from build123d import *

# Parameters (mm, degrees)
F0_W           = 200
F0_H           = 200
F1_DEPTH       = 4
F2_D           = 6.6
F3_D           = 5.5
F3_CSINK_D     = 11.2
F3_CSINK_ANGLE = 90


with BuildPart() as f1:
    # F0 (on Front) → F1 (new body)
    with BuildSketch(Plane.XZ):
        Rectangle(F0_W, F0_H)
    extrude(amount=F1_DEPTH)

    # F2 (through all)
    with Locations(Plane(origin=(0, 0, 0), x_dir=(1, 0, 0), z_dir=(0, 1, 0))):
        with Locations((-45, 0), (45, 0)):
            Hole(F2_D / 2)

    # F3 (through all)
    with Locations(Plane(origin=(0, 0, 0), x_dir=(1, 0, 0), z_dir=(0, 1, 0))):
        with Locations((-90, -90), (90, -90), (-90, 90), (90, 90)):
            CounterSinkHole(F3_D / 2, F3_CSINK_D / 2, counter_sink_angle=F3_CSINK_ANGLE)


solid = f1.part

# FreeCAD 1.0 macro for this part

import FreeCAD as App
import Part
import Sketcher

V = App.Vector
Q = App.Units.Quantity


def add_polygon(sketch, points):
    """Adds a closed chain of lines whose ends are joined by coincident constraints."""
    first, n = sketch.GeometryCount, len(points)
    for a, b in zip(points, points[1:] + points[:1]):
        sketch.addGeometry(Part.LineSegment(App.Vector(*a, 0), App.Vector(*b, 0)), False)
    for i in range(n):
        sketch.addConstraint(Sketcher.Constraint("Coincident", first + i, 2, first + (i + 1) % n, 1))

doc = App.newDocument("Part")
body = doc.addObject("PartDesign::Body", "Body")

sketch1 = body.newObject("Sketcher::SketchObject", "Sketch")
sketch1.AttachmentSupport = (doc.getObject("XZ_Plane"), [""])
sketch1.MapMode = "FlatFace"
add_polygon(sketch1, [(-100, 100), (-100, -100), (100, -100), (100, 100)])
sketch1.addConstraint([
    Sketcher.Constraint("Vertical", 0),
    Sketcher.Constraint("Horizontal", 1),
    Sketcher.Constraint("Vertical", 2),
    Sketcher.Constraint("Horizontal", 3),
    Sketcher.Constraint("Symmetric", 0, 2, 2, 2, -1, 1),
    Sketcher.Constraint("Equal", 3, 0),
    Sketcher.Constraint("DistanceX", 1, 1, 1, 2, Q("200 mm")),
])
pad1 = body.newObject("PartDesign::Pad", "Pad")
pad1.Profile = sketch1
pad1.Length = 4

sketch2 = body.newObject("Sketcher::SketchObject", "Sketch001")
sketch2.AttachmentSupport = (doc.getObject("XZ_Plane"), [""])
sketch2.MapMode = "FlatFace"
sketch2.addGeometry([
    Part.Circle(V(-45, 0, 0), V(0, 0, 1), 3.3),
    Part.Circle(V(45, 0, 0), V(0, 0, 1), 3.3),
], False)
sketch2.addConstraint([
    Sketcher.Constraint("Equal", 0, 1),
    Sketcher.Constraint("Symmetric", 0, 3, 1, 3, -1, 1),
    Sketcher.Constraint("PointOnObject", 0, 3, -1),
    Sketcher.Constraint("Diameter", 0, Q("6.6 mm")),
    Sketcher.Constraint("DistanceX", 0, 3, -1, 1, Q("45 mm")),
])
doc.recompute()
hole = body.newObject("PartDesign::Hole", "Hole")
hole.Profile = sketch2
hole.ThreadType = "None"
hole.Diameter = 6.6
hole.DepthType = "ThroughAll"
hole.Reversed = True

sketch3 = body.newObject("Sketcher::SketchObject", "Sketch002")
sketch3.AttachmentSupport = (doc.getObject("XZ_Plane"), [""])
sketch3.MapMode = "FlatFace"
sketch3.addGeometry([
    Part.Circle(V(-90, 90, 0), V(0, 0, 1), 2.75),
    Part.Circle(V(90, 90, 0), V(0, 0, 1), 2.75),
    Part.Circle(V(-90, -90, 0), V(0, 0, 1), 2.75),
    Part.Circle(V(90, -90, 0), V(0, 0, 1), 2.75),
], False)
sketch3.addConstraint([
    Sketcher.Constraint("Equal", 0, 1),
    Sketcher.Constraint("Equal", 1, 2),
    Sketcher.Constraint("Equal", 2, 3),
    Sketcher.Constraint("Symmetric", 1, 3, 2, 3, -1, 1),
    Sketcher.Constraint("Symmetric", 0, 3, 3, 3, -1, 1),
    Sketcher.Constraint("Symmetric", 0, 3, 1, 3, -2),
    Sketcher.Constraint("Diameter", 0, Q("5.5 mm")),
    Sketcher.Constraint("DistanceX", 0, 3, -1, 1, Q("90 mm")),
    Sketcher.Constraint("DistanceY", -1, 1, 0, 3, Q("90 mm")),
])
doc.recompute()
hole2 = body.newObject("PartDesign::Hole", "Hole001")
hole2.Profile = sketch3
hole2.ThreadType = "None"
hole2.Diameter = 5.5
hole2.DepthType = "ThroughAll"
hole2.HoleCutType = "Countersink"
hole2.HoleCutDiameter = 11.2
hole2.HoleCutCountersinkAngle = 90
hole2.Reversed = True

doc.recompute()
